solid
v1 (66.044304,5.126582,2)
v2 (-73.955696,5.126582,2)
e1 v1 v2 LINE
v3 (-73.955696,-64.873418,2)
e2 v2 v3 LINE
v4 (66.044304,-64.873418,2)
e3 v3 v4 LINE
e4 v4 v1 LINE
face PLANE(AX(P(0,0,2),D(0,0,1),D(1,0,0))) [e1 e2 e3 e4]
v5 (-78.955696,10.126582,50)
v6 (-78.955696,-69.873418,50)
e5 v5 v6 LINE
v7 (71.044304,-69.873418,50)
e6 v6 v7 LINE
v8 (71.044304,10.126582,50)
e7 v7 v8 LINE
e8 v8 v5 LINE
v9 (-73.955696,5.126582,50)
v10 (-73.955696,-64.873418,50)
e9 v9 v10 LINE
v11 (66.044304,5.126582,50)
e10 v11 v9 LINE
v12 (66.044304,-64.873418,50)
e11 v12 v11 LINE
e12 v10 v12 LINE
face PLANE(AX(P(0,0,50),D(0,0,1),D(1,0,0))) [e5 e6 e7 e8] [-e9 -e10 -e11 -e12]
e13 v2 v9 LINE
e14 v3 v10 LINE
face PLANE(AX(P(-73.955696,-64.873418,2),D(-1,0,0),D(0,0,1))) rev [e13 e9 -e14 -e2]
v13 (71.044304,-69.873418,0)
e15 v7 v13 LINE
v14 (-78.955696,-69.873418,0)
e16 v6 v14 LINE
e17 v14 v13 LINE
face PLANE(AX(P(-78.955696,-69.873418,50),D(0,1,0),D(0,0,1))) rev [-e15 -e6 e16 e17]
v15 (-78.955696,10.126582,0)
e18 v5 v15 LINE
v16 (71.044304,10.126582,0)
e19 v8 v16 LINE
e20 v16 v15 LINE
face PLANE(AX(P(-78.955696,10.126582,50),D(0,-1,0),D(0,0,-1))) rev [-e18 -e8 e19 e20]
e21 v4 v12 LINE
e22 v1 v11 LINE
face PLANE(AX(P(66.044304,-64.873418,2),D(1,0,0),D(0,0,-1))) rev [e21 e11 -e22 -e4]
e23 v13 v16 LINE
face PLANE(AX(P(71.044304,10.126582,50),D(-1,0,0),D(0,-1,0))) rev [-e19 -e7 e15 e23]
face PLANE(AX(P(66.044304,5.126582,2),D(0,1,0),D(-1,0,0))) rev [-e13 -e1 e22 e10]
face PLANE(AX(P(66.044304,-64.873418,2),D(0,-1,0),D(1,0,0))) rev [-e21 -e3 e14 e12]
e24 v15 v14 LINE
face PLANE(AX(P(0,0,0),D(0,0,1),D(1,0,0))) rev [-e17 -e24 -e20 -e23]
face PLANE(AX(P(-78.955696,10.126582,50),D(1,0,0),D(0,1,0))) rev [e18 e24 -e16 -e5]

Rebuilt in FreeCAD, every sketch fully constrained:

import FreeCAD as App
import Part
import Sketcher

V = App.Vector
Q = App.Units.Quantity


def add_polygon(sketch, points):
    """Adds a closed chain of lines whose ends are joined by coincident constraints."""
    first, n = sketch.GeometryCount, len(points)
    for a, b in zip(points, points[1:] + points[:1]):
        sketch.addGeometry(Part.LineSegment(App.Vector(*a, 0), App.Vector(*b, 0)), False)
    for i in range(n):
        sketch.addConstraint(Sketcher.Constraint("Coincident", first + i, 2, first + (i + 1) % n, 1))

doc = App.newDocument("Part")
body = doc.addObject("PartDesign::Body", "Body")

# Sketch on XY plane
sketch1 = body.newObject("Sketcher::SketchObject", "Sketch")
sketch1.AttachmentSupport = (doc.getObject("XY_Plane"), [""])
sketch1.MapMode = "FlatFace"
add_polygon(sketch1, [(-79, 10), (-79, -70), (71, -70), (71, 10)])  # lines 0-3
sketch1.addConstraint([
    Sketcher.Constraint("Vertical", 0),
    Sketcher.Constraint("Horizontal", 1),
    Sketcher.Constraint("Vertical", 2),
    Sketcher.Constraint("Horizontal", 3),
    Sketcher.Constraint("DistanceX", 1, 1, 1, 2, Q("150 mm")),
    Sketcher.Constraint("DistanceY", 0, 2, 0, 1, Q("80 mm")),
    Sketcher.Constraint("DistanceX", 0, 2, -1, 1, Q("78.955696 mm")),
    Sketcher.Constraint("DistanceY", 0, 2, -1, 1, Q("69.873418 mm")),
])
pad1 = body.newObject("PartDesign::Pad", "Pad")
pad1.Profile = sketch1
pad1.Length = 50

# Sketch on XY plane
sketch2 = body.newObject("Sketcher::SketchObject", "Sketch001")
sketch2.AttachmentSupport = (doc.getObject("XY_Plane"), [""])
sketch2.MapMode = "FlatFace"
sketch2.AttachmentOffset = App.Placement(V(0, 0, 50), App.Rotation())
add_polygon(sketch2, [(-74, 5), (-74, -65), (66, -65), (66, 5)])  # lines 0-3
sketch2.addConstraint([
    Sketcher.Constraint("Vertical", 0),
    Sketcher.Constraint("Horizontal", 1),
    Sketcher.Constraint("Vertical", 2),
    Sketcher.Constraint("Horizontal", 3),
    Sketcher.Constraint("DistanceX", 1, 1, 1, 2, Q("140 mm")),
    Sketcher.Constraint("DistanceY", 0, 2, 0, 1, Q("70 mm")),
    Sketcher.Constraint("DistanceX", 0, 2, -1, 1, Q("73.955696 mm")),
    Sketcher.Constraint("DistanceY", 0, 2, -1, 1, Q("64.873418 mm")),
])
pocket1 = body.newObject("PartDesign::Pocket", "Pocket")
pocket1.Profile = sketch2
pocket1.Length = 48

doc.recompute()
